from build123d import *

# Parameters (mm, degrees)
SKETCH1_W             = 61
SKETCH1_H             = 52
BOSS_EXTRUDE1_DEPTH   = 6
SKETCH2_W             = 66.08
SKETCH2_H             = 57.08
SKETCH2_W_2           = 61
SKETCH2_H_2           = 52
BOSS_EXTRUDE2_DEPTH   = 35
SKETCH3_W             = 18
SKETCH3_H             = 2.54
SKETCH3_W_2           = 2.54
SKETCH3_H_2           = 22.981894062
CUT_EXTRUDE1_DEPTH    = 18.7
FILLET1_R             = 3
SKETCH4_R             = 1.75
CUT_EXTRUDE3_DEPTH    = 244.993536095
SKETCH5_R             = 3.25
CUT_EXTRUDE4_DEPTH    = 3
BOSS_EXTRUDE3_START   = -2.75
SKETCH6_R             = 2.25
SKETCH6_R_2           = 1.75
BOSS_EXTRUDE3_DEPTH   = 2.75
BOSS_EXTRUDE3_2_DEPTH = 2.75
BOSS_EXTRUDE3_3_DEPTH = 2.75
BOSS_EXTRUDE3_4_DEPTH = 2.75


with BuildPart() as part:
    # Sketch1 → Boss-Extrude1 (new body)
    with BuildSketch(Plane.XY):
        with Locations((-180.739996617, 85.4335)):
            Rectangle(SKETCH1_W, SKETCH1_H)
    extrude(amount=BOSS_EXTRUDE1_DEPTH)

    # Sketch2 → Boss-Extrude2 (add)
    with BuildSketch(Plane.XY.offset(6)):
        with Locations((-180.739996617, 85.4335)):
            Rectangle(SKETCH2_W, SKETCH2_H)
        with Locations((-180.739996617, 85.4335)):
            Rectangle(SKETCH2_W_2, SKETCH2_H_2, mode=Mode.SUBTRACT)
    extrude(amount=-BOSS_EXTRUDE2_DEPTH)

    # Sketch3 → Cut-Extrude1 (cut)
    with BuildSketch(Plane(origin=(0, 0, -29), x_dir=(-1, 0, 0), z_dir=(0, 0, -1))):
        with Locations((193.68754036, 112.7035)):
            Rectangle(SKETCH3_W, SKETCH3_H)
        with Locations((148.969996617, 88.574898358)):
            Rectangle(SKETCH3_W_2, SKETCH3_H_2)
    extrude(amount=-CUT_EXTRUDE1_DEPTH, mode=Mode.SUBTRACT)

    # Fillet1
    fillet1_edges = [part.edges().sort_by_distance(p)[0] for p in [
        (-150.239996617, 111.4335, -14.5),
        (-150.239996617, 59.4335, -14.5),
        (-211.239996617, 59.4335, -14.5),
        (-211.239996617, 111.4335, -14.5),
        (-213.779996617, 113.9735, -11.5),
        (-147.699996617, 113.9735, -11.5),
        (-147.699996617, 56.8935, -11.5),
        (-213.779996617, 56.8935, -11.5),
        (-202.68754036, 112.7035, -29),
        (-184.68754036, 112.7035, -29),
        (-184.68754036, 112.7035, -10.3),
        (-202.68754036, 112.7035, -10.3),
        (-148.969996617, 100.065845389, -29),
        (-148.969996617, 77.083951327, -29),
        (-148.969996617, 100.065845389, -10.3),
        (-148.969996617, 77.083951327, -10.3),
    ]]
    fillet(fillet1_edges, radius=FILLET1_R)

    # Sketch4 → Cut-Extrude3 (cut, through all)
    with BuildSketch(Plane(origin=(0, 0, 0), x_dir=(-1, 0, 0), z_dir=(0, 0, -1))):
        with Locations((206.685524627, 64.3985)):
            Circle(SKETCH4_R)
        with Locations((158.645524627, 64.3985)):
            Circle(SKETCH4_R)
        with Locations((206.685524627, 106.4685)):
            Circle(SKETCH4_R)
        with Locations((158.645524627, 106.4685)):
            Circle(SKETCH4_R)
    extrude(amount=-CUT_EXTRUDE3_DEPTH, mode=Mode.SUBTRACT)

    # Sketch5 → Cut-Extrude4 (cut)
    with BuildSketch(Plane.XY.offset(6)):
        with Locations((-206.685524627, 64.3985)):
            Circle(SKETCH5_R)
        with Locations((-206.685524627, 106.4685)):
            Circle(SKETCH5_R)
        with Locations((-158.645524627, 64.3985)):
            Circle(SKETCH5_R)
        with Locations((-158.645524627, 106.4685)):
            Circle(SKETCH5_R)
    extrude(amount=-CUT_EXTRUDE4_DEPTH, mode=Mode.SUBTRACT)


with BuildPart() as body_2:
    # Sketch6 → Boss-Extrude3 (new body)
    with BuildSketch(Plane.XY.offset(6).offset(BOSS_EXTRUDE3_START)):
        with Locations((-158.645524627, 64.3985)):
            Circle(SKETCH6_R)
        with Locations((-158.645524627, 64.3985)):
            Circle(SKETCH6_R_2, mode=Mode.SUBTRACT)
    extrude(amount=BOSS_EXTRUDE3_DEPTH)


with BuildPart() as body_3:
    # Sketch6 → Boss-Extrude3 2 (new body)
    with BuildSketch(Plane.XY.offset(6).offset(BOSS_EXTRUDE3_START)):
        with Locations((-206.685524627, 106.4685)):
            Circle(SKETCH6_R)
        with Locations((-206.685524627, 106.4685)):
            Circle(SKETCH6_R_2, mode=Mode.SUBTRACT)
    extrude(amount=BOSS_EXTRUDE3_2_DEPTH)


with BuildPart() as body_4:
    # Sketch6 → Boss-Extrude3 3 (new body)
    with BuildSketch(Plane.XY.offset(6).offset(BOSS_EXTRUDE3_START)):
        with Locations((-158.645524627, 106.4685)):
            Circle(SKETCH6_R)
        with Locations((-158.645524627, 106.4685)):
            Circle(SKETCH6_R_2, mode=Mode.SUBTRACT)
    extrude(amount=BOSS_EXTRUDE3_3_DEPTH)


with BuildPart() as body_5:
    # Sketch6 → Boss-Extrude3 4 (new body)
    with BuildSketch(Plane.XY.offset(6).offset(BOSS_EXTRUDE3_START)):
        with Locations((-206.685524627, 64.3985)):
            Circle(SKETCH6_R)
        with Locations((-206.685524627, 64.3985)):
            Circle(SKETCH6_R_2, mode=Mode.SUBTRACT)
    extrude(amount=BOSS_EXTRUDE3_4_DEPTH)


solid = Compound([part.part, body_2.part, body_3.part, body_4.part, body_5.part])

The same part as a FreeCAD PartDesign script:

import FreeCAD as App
import Part
import Sketcher


def edges_at(feature, points):
    """Names of the edges that pass closest to the given points."""
    edges = feature.Shape.Edges
    near = lambda p: min(range(len(edges)), key=lambda i: edges[i].distToShape(Part.Vertex(*p))[0])
    return sorted({f"Edge{near(p) + 1}" for p in points})


def add_polygon(sketch, points):
    """Adds a closed chain of lines whose ends are joined by coincident constraints."""
    first, n = sketch.GeometryCount, len(points)
    for a, b in zip(points, points[1:] + points[:1]):
        sketch.addGeometry(Part.LineSegment(App.Vector(*a, 0), App.Vector(*b, 0)), False)
    for i in range(n):
        sketch.addConstraint(Sketcher.Constraint("Coincident", first + i, 2, first + (i + 1) % n, 1))

doc = App.newDocument("Part")
body = doc.addObject("PartDesign::Body", "Body")

# Sketch on XY plane
sketch1 = body.newObject("Sketcher::SketchObject", "Sketch")
sketch1.AttachmentSupport = (doc.getObject("XY_Plane"), [""])
sketch1.MapMode = "FlatFace"
add_polygon(sketch1, [(-211, 111), (-211, 59), (-150, 59), (-150, 111)])  # lines 0-3
sketch1.addConstraint([
    Sketcher.Constraint("Vertical", 0),
    Sketcher.Constraint("Horizontal", 1),
    Sketcher.Constraint("Vertical", 2),
    Sketcher.Constraint("Horizontal", 3),
    Sketcher.Constraint("DistanceX", 1, 1, 1, 2, 61.0),
    Sketcher.Constraint("DistanceY", 0, 2, 0, 1, 52.0),
    Sketcher.Constraint("DistanceY", -1, 1, 0, 2, 59.4335),
    Sketcher.Constraint("DistanceX", 0, 2, -1, 1, 211.239997),
])
pad1 = body.newObject("PartDesign::Pad", "Pad")
pad1.Profile = sketch1
pad1.Length = 6

# Sketch on XY plane
sketch2 = body.newObject("Sketcher::SketchObject", "Sketch001")
sketch2.AttachmentSupport = (doc.getObject("XY_Plane"), [""])
sketch2.MapMode = "FlatFace"
sketch2.AttachmentOffset = App.Placement(App.Vector(0, 0, 6), App.Rotation())
add_polygon(sketch2, [(-214, 114), (-214, 57), (-148, 57), (-148, 114)])  # lines 0-3
add_polygon(sketch2, [(-150, 59), (-211, 59), (-211, 111), (-150, 111)])  # lines 4-7
sketch2.addConstraint([
    Sketcher.Constraint("Vertical", 0),
    Sketcher.Constraint("Horizontal", 1),
    Sketcher.Constraint("Vertical", 2),
    Sketcher.Constraint("Horizontal", 3),
    Sketcher.Constraint("Horizontal", 4),
    Sketcher.Constraint("Vertical", 5),
    Sketcher.Constraint("Horizontal", 6),
    Sketcher.Constraint("Vertical", 7),
    Sketcher.Constraint("DistanceX", 4, 2, 4, 1, 61.0),
    Sketcher.Constraint("DistanceY", 5, 1, 5, 2, 52.0),
    Sketcher.Constraint("DistanceX", 1, 1, 1, 2, 66.08),
    Sketcher.Constraint("DistanceY", 0, 2, 0, 1, 57.08),
    Sketcher.Constraint("DistanceX", 0, 2, 4, 2, 2.54),
    Sketcher.Constraint("DistanceY", 0, 2, 4, 2, 2.54),
    Sketcher.Constraint("DistanceY", -1, 1, 0, 2, 56.8935),
    Sketcher.Constraint("DistanceX", 0, 2, -1, 1, 213.779997),
])
pad2 = body.newObject("PartDesign::Pad", "Pad001")
pad2.Profile = sketch2
pad2.Length = 35
pad2.Reversed = True

# Sketch on XY plane
sketch3 = body.newObject("Sketcher::SketchObject", "Sketch002")
sketch3.AttachmentSupport = (doc.getObject("XY_Plane"), [""])
sketch3.MapMode = "FlatFace"
sketch3.AttachmentOffset = App.Placement(App.Vector(0, 0, -29), App.Rotation())
add_polygon(sketch3, [(-184.7, 114), (-184.7, 111.4), (-202.7, 111.4), (-202.7, 114)])  # lines 0-3
add_polygon(sketch3, [(-147.7, 100.1), (-147.7, 77.1), (-150.2, 77.1), (-150.2, 100.1)])  # lines 4-7
sketch3.addConstraint([
    Sketcher.Constraint("Vertical", 0),
    Sketcher.Constraint("Horizontal", 1),
    Sketcher.Constraint("Vertical", 2),
    Sketcher.Constraint("Horizontal", 3),
    Sketcher.Constraint("Vertical", 4),
    Sketcher.Constraint("Horizontal", 5),
    Sketcher.Constraint("Vertical", 6),
    Sketcher.Constraint("Horizontal", 7),
    Sketcher.Constraint("Equal", 7, 0),
    Sketcher.Constraint("DistanceX", 1, 2, 1, 1, 18.0),
    Sketcher.Constraint("DistanceX", 5, 2, 5, 1, 2.54),
    Sketcher.Constraint("DistanceY", -1, 1, 0, 2, 111.4335),
    Sketcher.Constraint("DistanceY", 4, 2, 4, 1, 22.981894),
    Sketcher.Constraint("DistanceX", 0, 2, -1, 1, 184.68754),
    Sketcher.Constraint("DistanceY", -1, 1, 4, 2, 77.083951),
    Sketcher.Constraint("DistanceX", 4, 2, -1, 1, 147.699997),
])
pocket1 = body.newObject("PartDesign::Pocket", "Pocket")
pocket1.Profile = sketch3
pocket1.Length = 18.7
pocket1.Reversed = True
doc.recompute()

fillet = body.newObject("PartDesign::Fillet", "Fillet")
fillet.Base = (pocket1, edges_at(pocket1, [
    (-150.24, 111.433, -14.5),
    (-150.24, 59.434, -14.5),
    (-211.24, 59.434, -14.5),
    (-211.24, 111.433, -14.5),
    (-213.78, 113.974, -11.5),
    (-147.7, 113.974, -11.5),
    (-147.7, 56.894, -11.5),
    (-213.78, 56.894, -11.5),
    (-202.688, 112.704, -29),
    (-184.688, 112.704, -29),
    (-184.688, 112.704, -10.3),
    (-202.688, 112.704, -10.3),
    (-148.97, 100.066, -29),
    (-148.97, 77.084, -29),
    (-148.97, 100.066, -10.3),
    (-148.97, 77.084, -10.3),
]))
fillet.Radius = 3

# Sketch on XY plane
sketch4 = body.newObject("Sketcher::SketchObject", "Sketch003")
sketch4.AttachmentSupport = (doc.getObject("XY_Plane"), [""])
sketch4.MapMode = "FlatFace"
sketch4.addGeometry([
    Part.Circle(App.Vector(-206.7, 64.4, 0), App.Vector(0, 0, 1), 1.8),
    Part.Circle(App.Vector(-158.6, 64.4, 0), App.Vector(0, 0, 1), 1.8),
    Part.Circle(App.Vector(-206.7, 106.5, 0), App.Vector(0, 0, 1), 1.8),
    Part.Circle(App.Vector(-158.6, 106.5, 0), App.Vector(0, 0, 1), 1.8),
], False)
sketch4.addConstraint([
    Sketcher.Constraint("Equal", 0, 1),
    Sketcher.Constraint("Equal", 1, 2),
    Sketcher.Constraint("Equal", 2, 3),
    Sketcher.Constraint("Horizontal", 0, 3, 1, 3),
    Sketcher.Constraint("Horizontal", 2, 3, 3, 3),
    Sketcher.Constraint("Vertical", 0, 3, 2, 3),
    Sketcher.Constraint("Vertical", 1, 3, 3, 3),
    Sketcher.Constraint("Diameter", 0, 3.5),
    Sketcher.Constraint("DistanceX", 0, 3, 1, 3, 48.04),
    Sketcher.Constraint("DistanceY", 0, 3, 2, 3, 42.07),
    Sketcher.Constraint("DistanceY", -1, 1, 0, 3, 64.3985),
    Sketcher.Constraint("DistanceX", 0, 3, -1, 1, 206.685525),
])
pocket2 = body.newObject("PartDesign::Pocket", "Pocket001")
pocket2.Profile = sketch4
pocket2.Type = "ThroughAll"
pocket2.Reversed = True

# Sketch on XY plane
sketch5 = body.newObject("Sketcher::SketchObject", "Sketch004")
sketch5.AttachmentSupport = (doc.getObject("XY_Plane"), [""])
sketch5.MapMode = "FlatFace"
sketch5.AttachmentOffset = App.Placement(App.Vector(0, 0, 6), App.Rotation())
sketch5.addGeometry([
    Part.Circle(App.Vector(-206.7, 64.4, 0), App.Vector(0, 0, 1), 3.2),
    Part.Circle(App.Vector(-206.7, 106.5, 0), App.Vector(0, 0, 1), 3.2),
    Part.Circle(App.Vector(-158.6, 64.4, 0), App.Vector(0, 0, 1), 3.2),
    Part.Circle(App.Vector(-158.6, 106.5, 0), App.Vector(0, 0, 1), 3.2),
], False)
sketch5.addConstraint([
    Sketcher.Constraint("Equal", 0, 1),
    Sketcher.Constraint("Equal", 1, 2),
    Sketcher.Constraint("Equal", 2, 3),
    Sketcher.Constraint("Horizontal", 0, 3, 2, 3),
    Sketcher.Constraint("Horizontal", 1, 3, 3, 3),
    Sketcher.Constraint("Vertical", 0, 3, 1, 3),
    Sketcher.Constraint("Vertical", 2, 3, 3, 3),
    Sketcher.Constraint("Diameter", 0, 6.5),
    Sketcher.Constraint("DistanceY", 0, 3, 1, 3, 42.07),
    Sketcher.Constraint("DistanceX", 0, 3, 2, 3, 48.04),
    Sketcher.Constraint("DistanceY", -1, 1, 0, 3, 64.3985),
    Sketcher.Constraint("DistanceX", 0, 3, -1, 1, 206.685525),
])
pocket3 = body.newObject("PartDesign::Pocket", "Pocket002")
pocket3.Profile = sketch5
pocket3.Length = 3
body2 = doc.addObject("PartDesign::Body", "Body001")

# Sketch on XY plane
sketch6 = body2.newObject("Sketcher::SketchObject", "Sketch005")
sketch6.AttachmentSupport = (doc.getObject("XY_Plane001"), [""])
sketch6.MapMode = "FlatFace"
sketch6.AttachmentOffset = App.Placement(App.Vector(0, 0, 3.25), App.Rotation())
sketch6.addGeometry([
    Part.Circle(App.Vector(-158.6, 64.4, 0), App.Vector(0, 0, 1), 2.2),
    Part.Circle(App.Vector(-158.6, 64.4, 0), App.Vector(0, 0, 1), 1.8),
], False)
sketch6.addConstraint([
    Sketcher.Constraint("Coincident", 1, 3, 0, 3),
    Sketcher.Constraint("Diameter", 0, 4.5),
    Sketcher.Constraint("Diameter", 1, 3.5),
    Sketcher.Constraint("DistanceY", -1, 1, 0, 3, 64.3985),
    Sketcher.Constraint("DistanceX", 0, 3, -1, 1, 158.645525),
])
pad3 = body2.newObject("PartDesign::Pad", "Pad002")
pad3.Profile = sketch6
pad3.Length = 2.75
body3 = doc.addObject("PartDesign::Body", "Body002")

# Sketch on XY plane
sketch7 = body3.newObject("Sketcher::SketchObject", "Sketch006")
sketch7.AttachmentSupport = (doc.getObject("XY_Plane002"), [""])
sketch7.MapMode = "FlatFace"
sketch7.AttachmentOffset = App.Placement(App.Vector(0, 0, 3.25), App.Rotation())
sketch7.addGeometry([
    Part.Circle(App.Vector(-206.7, 106.5, 0), App.Vector(0, 0, 1), 2.2),
    Part.Circle(App.Vector(-206.7, 106.5, 0), App.Vector(0, 0, 1), 1.8),
], False)
sketch7.addConstraint([
    Sketcher.Constraint("Coincident", 1, 3, 0, 3),
    Sketcher.Constraint("Diameter", 0, 4.5),
    Sketcher.Constraint("Diameter", 1, 3.5),
    Sketcher.Constraint("DistanceY", -1, 1, 0, 3, 106.4685),
    Sketcher.Constraint("DistanceX", 0, 3, -1, 1, 206.685525),
])
pad4 = body3.newObject("PartDesign::Pad", "Pad003")
pad4.Profile = sketch7
pad4.Length = 2.75
body4 = doc.addObject("PartDesign::Body", "Body003")

# Sketch on XY plane
sketch8 = body4.newObject("Sketcher::SketchObject", "Sketch007")
sketch8.AttachmentSupport = (doc.getObject("XY_Plane003"), [""])
sketch8.MapMode = "FlatFace"
sketch8.AttachmentOffset = App.Placement(App.Vector(0, 0, 3.25), App.Rotation())
sketch8.addGeometry([
    Part.Circle(App.Vector(-158.6, 106.5, 0), App.Vector(0, 0, 1), 2.2),
    Part.Circle(App.Vector(-158.6, 106.5, 0), App.Vector(0, 0, 1), 1.8),
], False)
sketch8.addConstraint([
    Sketcher.Constraint("Coincident", 1, 3, 0, 3),
    Sketcher.Constraint("Diameter", 0, 4.5),
    Sketcher.Constraint("Diameter", 1, 3.5),
    Sketcher.Constraint("DistanceY", -1, 1, 0, 3, 106.4685),
    Sketcher.Constraint("DistanceX", 0, 3, -1, 1, 158.645525),
])
pad5 = body4.newObject("PartDesign::Pad", "Pad004")
pad5.Profile = sketch8
pad5.Length = 2.75
body5 = doc.addObject("PartDesign::Body", "Body004")

# Sketch on XY plane
sketch9 = body5.newObject("Sketcher::SketchObject", "Sketch008")
sketch9.AttachmentSupport = (doc.getObject("XY_Plane004"), [""])
sketch9.MapMode = "FlatFace"
sketch9.AttachmentOffset = App.Placement(App.Vector(0, 0, 3.25), App.Rotation())
sketch9.addGeometry([
    Part.Circle(App.Vector(-206.7, 64.4, 0), App.Vector(0, 0, 1), 2.2),
    Part.Circle(App.Vector(-206.7, 64.4, 0), App.Vector(0, 0, 1), 1.8),
], False)
sketch9.addConstraint([
    Sketcher.Constraint("Coincident", 1, 3, 0, 3),
    Sketcher.Constraint("Diameter", 0, 4.5),
    Sketcher.Constraint("Diameter", 1, 3.5),
    Sketcher.Constraint("DistanceY", -1, 1, 0, 3, 64.3985),
    Sketcher.Constraint("DistanceX", 0, 3, -1, 1, 206.685525),
])
pad6 = body5.newObject("PartDesign::Pad", "Pad005")
pad6.Profile = sketch9
pad6.Length = 2.75

doc.recompute()
